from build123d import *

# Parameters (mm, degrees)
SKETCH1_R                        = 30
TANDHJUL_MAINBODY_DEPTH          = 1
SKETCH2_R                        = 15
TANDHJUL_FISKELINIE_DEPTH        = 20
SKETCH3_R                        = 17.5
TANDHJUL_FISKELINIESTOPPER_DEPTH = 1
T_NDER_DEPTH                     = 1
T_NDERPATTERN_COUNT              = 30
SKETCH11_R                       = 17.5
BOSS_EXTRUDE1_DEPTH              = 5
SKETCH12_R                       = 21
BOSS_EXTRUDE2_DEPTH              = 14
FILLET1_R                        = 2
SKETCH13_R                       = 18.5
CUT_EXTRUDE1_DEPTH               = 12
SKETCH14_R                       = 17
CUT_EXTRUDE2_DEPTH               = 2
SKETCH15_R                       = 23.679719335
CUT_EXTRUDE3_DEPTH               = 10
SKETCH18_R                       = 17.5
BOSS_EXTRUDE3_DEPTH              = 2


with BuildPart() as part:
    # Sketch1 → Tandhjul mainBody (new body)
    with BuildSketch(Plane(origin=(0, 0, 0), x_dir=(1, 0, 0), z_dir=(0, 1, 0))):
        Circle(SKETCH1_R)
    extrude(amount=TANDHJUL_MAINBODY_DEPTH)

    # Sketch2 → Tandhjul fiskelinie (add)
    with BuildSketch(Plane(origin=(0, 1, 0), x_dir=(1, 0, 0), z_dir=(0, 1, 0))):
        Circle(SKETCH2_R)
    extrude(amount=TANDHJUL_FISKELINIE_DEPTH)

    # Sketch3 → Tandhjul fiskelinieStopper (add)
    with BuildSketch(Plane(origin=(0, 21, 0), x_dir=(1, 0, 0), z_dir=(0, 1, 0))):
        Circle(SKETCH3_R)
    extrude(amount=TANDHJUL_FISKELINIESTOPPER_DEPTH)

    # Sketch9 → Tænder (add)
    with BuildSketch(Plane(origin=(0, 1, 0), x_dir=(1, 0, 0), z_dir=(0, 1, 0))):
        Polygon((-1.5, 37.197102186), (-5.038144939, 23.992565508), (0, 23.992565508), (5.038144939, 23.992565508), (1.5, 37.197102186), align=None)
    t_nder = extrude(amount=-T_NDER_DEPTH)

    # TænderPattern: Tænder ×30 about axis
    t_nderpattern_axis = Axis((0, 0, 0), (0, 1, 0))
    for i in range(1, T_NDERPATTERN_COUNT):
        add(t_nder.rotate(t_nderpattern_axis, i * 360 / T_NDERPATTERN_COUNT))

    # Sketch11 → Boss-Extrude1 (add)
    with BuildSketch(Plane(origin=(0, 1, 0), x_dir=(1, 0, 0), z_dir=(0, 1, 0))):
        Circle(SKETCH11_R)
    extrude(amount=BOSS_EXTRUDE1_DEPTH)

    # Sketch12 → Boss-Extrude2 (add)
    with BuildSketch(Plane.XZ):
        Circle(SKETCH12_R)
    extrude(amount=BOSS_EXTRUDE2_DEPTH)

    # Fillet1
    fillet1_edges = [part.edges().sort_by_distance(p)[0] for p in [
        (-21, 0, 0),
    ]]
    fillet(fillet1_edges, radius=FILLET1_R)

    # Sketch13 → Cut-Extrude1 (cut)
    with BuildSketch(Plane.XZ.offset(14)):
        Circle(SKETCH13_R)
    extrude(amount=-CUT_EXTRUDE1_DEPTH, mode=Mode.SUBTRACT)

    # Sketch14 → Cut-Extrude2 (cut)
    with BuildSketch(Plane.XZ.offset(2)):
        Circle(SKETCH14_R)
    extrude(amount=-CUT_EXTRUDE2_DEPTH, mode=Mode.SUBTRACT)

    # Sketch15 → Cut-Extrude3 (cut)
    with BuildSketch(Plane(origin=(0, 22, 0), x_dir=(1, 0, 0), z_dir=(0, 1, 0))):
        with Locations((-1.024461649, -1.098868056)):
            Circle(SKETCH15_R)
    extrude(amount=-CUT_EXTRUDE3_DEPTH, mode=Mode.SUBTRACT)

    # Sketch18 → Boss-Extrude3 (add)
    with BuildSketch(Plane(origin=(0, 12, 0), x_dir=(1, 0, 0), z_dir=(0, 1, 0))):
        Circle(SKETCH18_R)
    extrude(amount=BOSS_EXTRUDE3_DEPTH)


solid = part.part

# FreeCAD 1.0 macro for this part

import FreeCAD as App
import Part
import Sketcher

V = App.Vector
Q = App.Units.Quantity


def edges_at(feature, points):
    """Names of the edges that pass closest to the given points."""
    edges = feature.Shape.Edges
    near = lambda p: min(range(len(edges)), key=lambda i: edges[i].distToShape(Part.Vertex(*p))[0])
    return sorted({f"Edge{near(p) + 1}" for p in points})


def add_polygon(sketch, points):
    """Adds a closed chain of lines whose ends are joined by coincident constraints."""
    first, n = sketch.GeometryCount, len(points)
    for a, b in zip(points, points[1:] + points[:1]):
        sketch.addGeometry(Part.LineSegment(App.Vector(*a, 0), App.Vector(*b, 0)), False)
    for i in range(n):
        sketch.addConstraint(Sketcher.Constraint("Coincident", first + i, 2, first + (i + 1) % n, 1))

doc = App.newDocument("Part")
body = doc.addObject("PartDesign::Body", "Body")

sketch1 = body.newObject("Sketcher::SketchObject", "Sketch")
sketch1.AttachmentSupport = (doc.getObject("XZ_Plane"), [""])
sketch1.MapMode = "FlatFace"
sketch1.addGeometry(Part.Circle(V(0, 0, 0), V(0, 0, 1), 30), False)
sketch1.addConstraint(Sketcher.Constraint("Coincident", 0, 3, -1, 1))
sketch1.addConstraint(Sketcher.Constraint("Diameter", 0, Q("60 mm")))
pad1 = body.newObject("PartDesign::Pad", "Pad")
pad1.Profile = sketch1
pad1.Length = 1
pad1.Reversed = True

sketch2 = body.newObject("Sketcher::SketchObject", "Sketch001")
sketch2.AttachmentSupport = (doc.getObject("XZ_Plane"), [""])
sketch2.MapMode = "FlatFace"
sketch2.AttachmentOffset = App.Placement(V(0, 0, -1), App.Rotation())
sketch2.addGeometry(Part.Circle(V(0, 0, 0), V(0, 0, 1), 15), False)
sketch2.addConstraint(Sketcher.Constraint("Coincident", 0, 3, -1, 1))
sketch2.addConstraint(Sketcher.Constraint("Diameter", 0, Q("30 mm")))
pad2 = body.newObject("PartDesign::Pad", "Pad001")
pad2.Profile = sketch2
pad2.Length = 20
pad2.Reversed = True

sketch3 = body.newObject("Sketcher::SketchObject", "Sketch002")
sketch3.AttachmentSupport = (doc.getObject("XZ_Plane"), [""])
sketch3.MapMode = "FlatFace"
sketch3.AttachmentOffset = App.Placement(V(0, 0, -21), App.Rotation())
sketch3.addGeometry(Part.Circle(V(0, 0, 0), V(0, 0, 1), 17.5), False)
sketch3.addConstraint(Sketcher.Constraint("Coincident", 0, 3, -1, 1))
sketch3.addConstraint(Sketcher.Constraint("Diameter", 0, Q("35 mm")))
pad3 = body.newObject("PartDesign::Pad", "Pad002")
pad3.Profile = sketch3
pad3.Length = 1
pad3.Reversed = True

sketch4 = body.newObject("Sketcher::SketchObject", "Sketch003")
sketch4.AttachmentSupport = (doc.getObject("XZ_Plane"), [""])
sketch4.MapMode = "FlatFace"
sketch4.AttachmentOffset = App.Placement(V(0, 0, -1), App.Rotation())
add_polygon(sketch4, [(-1.5, -37.197102), (-5.038145, -23.992566), (5.038145, -23.992566), (1.5, -37.197102)])
sketch4.addConstraint(Sketcher.Constraint("Horizontal", 1))
sketch4.addConstraint(Sketcher.Constraint("Horizontal", 3))
sketch4.addConstraint(Sketcher.Constraint("Equal", 0, 2))
sketch4.addConstraint(Sketcher.Constraint("DistanceX", 3, 2, 3, 1, Q("3 mm")))
sketch4.addConstraint(Sketcher.Constraint("Angle", 0, Q("105 deg")))
sketch4.addConstraint(Sketcher.Constraint("DistanceX", -1, 1, 2, 2, Q("1.5 mm")))
sketch4.addConstraint(Sketcher.Constraint("DistanceX", 1, 1, 1, 2, Q("10.07629 mm")))
sketch4.addConstraint(Sketcher.Constraint("DistanceY", 0, 2, -1, 1, Q("23.992566 mm")))
pad4 = body.newObject("PartDesign::Pad", "Pad003")
pad4.Profile = sketch4
pad4.Length = 1
doc.recompute()

polarpattern = body.newObject("PartDesign::PolarPattern", "PolarPattern")
polarpattern.Originals = [pad4]
polarpattern.Axis = (doc.getObject("Y_Axis"), [""])
polarpattern.Angle = 360
polarpattern.Occurrences = 30
body.Tip = polarpattern

sketch5 = body.newObject("Sketcher::SketchObject", "Sketch004")
sketch5.AttachmentSupport = (doc.getObject("XZ_Plane"), [""])
sketch5.MapMode = "FlatFace"
sketch5.AttachmentOffset = App.Placement(V(0, 0, -1), App.Rotation())
sketch5.addGeometry(Part.Circle(V(0, 0, 0), V(0, 0, 1), 17.5), False)
sketch5.addConstraint(Sketcher.Constraint("Coincident", 0, 3, -1, 1))
sketch5.addConstraint(Sketcher.Constraint("Diameter", 0, Q("35 mm")))
pad5 = body.newObject("PartDesign::Pad", "Pad004")
pad5.Profile = sketch5
pad5.Length = 5
pad5.Reversed = True

sketch6 = body.newObject("Sketcher::SketchObject", "Sketch005")
sketch6.AttachmentSupport = (doc.getObject("XZ_Plane"), [""])
sketch6.MapMode = "FlatFace"
sketch6.addGeometry(Part.Circle(V(0, 0, 0), V(0, 0, 1), 21), False)
sketch6.addConstraint(Sketcher.Constraint("Coincident", 0, 3, -1, 1))
sketch6.addConstraint(Sketcher.Constraint("Diameter", 0, Q("42 mm")))
pad6 = body.newObject("PartDesign::Pad", "Pad005")
pad6.Profile = sketch6
pad6.Length = 14
doc.recompute()

fillet = body.newObject("PartDesign::Fillet", "Fillet")
fillet.Base = (pad6, edges_at(pad6, [(-21, 0, 0)]))
fillet.Radius = 2

sketch7 = body.newObject("Sketcher::SketchObject", "Sketch006")
sketch7.AttachmentSupport = (doc.getObject("XZ_Plane"), [""])
sketch7.MapMode = "FlatFace"
sketch7.AttachmentOffset = App.Placement(V(0, 0, 14), App.Rotation())
sketch7.addGeometry(Part.Circle(V(0, 0, 0), V(0, 0, 1), 18.5), False)
sketch7.addConstraint(Sketcher.Constraint("Coincident", 0, 3, -1, 1))
sketch7.addConstraint(Sketcher.Constraint("Diameter", 0, Q("37 mm")))
pocket1 = body.newObject("PartDesign::Pocket", "Pocket")
pocket1.Profile = sketch7
pocket1.Length = 12

sketch8 = body.newObject("Sketcher::SketchObject", "Sketch007")
sketch8.AttachmentSupport = (doc.getObject("XZ_Plane"), [""])
sketch8.MapMode = "FlatFace"
sketch8.AttachmentOffset = App.Placement(V(0, 0, 2), App.Rotation())
sketch8.addGeometry(Part.Circle(V(0, 0, 0), V(0, 0, 1), 17), False)
sketch8.addConstraint(Sketcher.Constraint("Coincident", 0, 3, -1, 1))
sketch8.addConstraint(Sketcher.Constraint("Diameter", 0, Q("34 mm")))
pocket2 = body.newObject("PartDesign::Pocket", "Pocket001")
pocket2.Profile = sketch8
pocket2.Length = 2

sketch9 = body.newObject("Sketcher::SketchObject", "Sketch008")
sketch9.AttachmentSupport = (doc.getObject("XZ_Plane"), [""])
sketch9.MapMode = "FlatFace"
sketch9.AttachmentOffset = App.Placement(V(0, 0, -22), App.Rotation())
sketch9.addGeometry(Part.Circle(V(-1.024462, 1.098868, 0), V(0, 0, 1), 23.679719), False)
sketch9.addConstraint(Sketcher.Constraint("Diameter", 0, Q("47.359439 mm")))
sketch9.addConstraint(Sketcher.Constraint("DistanceX", 0, 3, -1, 1, Q("1.024462 mm")))
sketch9.addConstraint(Sketcher.Constraint("DistanceY", -1, 1, 0, 3, Q("1.098868 mm")))
pocket3 = body.newObject("PartDesign::Pocket", "Pocket002")
pocket3.Profile = sketch9
pocket3.Length = 10
pocket3.Reversed = True

sketch10 = body.newObject("Sketcher::SketchObject", "Sketch009")
sketch10.AttachmentSupport = (doc.getObject("XZ_Plane"), [""])
sketch10.MapMode = "FlatFace"
sketch10.AttachmentOffset = App.Placement(V(0, 0, -12), App.Rotation())
sketch10.addGeometry(Part.Circle(V(0, 0, 0), V(0, 0, 1), 17.5), False)
sketch10.addConstraint(Sketcher.Constraint("Coincident", 0, 3, -1, 1))
sketch10.addConstraint(Sketcher.Constraint("Diameter", 0, Q("35 mm")))
pad7 = body.newObject("PartDesign::Pad", "Pad006")
pad7.Profile = sketch10
pad7.Length = 2
pad7.Reversed = True

doc.recompute()
